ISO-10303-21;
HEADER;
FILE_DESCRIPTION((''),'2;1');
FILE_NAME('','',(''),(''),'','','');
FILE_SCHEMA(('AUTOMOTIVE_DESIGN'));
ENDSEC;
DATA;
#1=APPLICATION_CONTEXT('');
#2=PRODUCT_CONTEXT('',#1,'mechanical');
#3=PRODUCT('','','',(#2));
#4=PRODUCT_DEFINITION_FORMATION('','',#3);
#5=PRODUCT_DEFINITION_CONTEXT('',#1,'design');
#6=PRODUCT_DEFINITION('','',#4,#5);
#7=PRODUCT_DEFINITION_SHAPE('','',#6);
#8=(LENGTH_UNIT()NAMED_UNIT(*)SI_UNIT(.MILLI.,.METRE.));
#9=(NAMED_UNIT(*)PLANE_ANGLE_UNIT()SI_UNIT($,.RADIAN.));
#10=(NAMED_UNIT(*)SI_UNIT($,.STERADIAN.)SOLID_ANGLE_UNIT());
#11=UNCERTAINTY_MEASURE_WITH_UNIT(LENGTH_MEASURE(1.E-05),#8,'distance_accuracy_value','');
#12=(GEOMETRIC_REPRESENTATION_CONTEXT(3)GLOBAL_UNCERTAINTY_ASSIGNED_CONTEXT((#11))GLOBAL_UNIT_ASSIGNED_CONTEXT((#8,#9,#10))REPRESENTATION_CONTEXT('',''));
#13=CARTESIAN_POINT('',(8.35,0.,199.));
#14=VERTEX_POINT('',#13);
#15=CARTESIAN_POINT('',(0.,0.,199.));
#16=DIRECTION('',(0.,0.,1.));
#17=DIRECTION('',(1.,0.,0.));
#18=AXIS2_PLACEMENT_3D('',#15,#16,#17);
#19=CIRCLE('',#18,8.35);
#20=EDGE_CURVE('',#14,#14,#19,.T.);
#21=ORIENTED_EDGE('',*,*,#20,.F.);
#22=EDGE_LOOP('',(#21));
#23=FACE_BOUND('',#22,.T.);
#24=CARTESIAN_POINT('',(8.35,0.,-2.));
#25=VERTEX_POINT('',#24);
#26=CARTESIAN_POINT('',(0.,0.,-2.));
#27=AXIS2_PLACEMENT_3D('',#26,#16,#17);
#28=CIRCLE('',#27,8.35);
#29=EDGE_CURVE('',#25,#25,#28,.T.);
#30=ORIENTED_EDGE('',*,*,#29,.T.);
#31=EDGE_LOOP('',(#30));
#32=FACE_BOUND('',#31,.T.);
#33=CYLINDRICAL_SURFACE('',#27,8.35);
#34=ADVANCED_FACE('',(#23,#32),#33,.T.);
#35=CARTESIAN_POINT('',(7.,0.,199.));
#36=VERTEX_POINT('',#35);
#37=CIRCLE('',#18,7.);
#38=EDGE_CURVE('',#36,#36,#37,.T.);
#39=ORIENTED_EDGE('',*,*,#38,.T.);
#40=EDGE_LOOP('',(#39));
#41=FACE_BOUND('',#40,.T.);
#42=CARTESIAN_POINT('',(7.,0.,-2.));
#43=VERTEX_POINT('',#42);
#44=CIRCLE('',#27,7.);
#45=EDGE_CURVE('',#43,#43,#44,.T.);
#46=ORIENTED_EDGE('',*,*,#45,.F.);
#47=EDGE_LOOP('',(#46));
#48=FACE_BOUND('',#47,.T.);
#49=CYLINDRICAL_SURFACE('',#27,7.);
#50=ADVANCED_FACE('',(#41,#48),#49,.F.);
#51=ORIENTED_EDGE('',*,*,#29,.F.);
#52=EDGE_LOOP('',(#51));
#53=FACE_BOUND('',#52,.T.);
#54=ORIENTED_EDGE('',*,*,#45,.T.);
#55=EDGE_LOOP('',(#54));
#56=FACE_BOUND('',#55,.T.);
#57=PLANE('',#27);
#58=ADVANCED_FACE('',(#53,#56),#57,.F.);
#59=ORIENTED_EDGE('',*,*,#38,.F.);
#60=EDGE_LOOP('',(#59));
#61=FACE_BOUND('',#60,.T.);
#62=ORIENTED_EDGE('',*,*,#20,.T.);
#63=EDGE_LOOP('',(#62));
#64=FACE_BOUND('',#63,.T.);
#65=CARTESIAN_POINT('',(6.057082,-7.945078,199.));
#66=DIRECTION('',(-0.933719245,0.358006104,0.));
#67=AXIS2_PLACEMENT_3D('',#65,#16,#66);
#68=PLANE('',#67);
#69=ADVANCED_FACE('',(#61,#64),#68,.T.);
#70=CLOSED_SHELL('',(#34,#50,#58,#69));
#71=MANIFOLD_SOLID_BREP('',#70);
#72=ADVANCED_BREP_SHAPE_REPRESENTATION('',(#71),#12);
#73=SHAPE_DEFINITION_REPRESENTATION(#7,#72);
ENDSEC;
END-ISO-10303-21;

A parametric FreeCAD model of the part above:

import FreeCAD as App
import Part
import Sketcher

V = App.Vector
Q = App.Units.Quantity

doc = App.newDocument("Part")
body = doc.addObject("PartDesign::Body", "Body")

# Sketch on XY plane
sketch1 = body.newObject("Sketcher::SketchObject", "Sketch")
sketch1.AttachmentSupport = (doc.getObject("XY_Plane"), [""])
sketch1.MapMode = "FlatFace"
sketch1.addGeometry([
    Part.Circle(V(0, 0, 0), V(0, 0, 1), 8),
    Part.Circle(V(0, 0, 0), V(0, 0, 1), 7),
], False)
sketch1.addConstraint([
    Sketcher.Constraint("Coincident", 0, 3, -1, 1),
    Sketcher.Constraint("Coincident", 1, 3, -1, 1),
    Sketcher.Constraint("Diameter", 1, Q("14 mm")),
    Sketcher.Constraint("Diameter", 0, Q("16.7 mm")),
])
pad1 = body.newObject("PartDesign::Pad", "Pad")
pad1.Profile = sketch1
pad1.Type = "TwoLengths"
pad1.Length = 199
pad1.Length2 = 2

doc.recompute()
